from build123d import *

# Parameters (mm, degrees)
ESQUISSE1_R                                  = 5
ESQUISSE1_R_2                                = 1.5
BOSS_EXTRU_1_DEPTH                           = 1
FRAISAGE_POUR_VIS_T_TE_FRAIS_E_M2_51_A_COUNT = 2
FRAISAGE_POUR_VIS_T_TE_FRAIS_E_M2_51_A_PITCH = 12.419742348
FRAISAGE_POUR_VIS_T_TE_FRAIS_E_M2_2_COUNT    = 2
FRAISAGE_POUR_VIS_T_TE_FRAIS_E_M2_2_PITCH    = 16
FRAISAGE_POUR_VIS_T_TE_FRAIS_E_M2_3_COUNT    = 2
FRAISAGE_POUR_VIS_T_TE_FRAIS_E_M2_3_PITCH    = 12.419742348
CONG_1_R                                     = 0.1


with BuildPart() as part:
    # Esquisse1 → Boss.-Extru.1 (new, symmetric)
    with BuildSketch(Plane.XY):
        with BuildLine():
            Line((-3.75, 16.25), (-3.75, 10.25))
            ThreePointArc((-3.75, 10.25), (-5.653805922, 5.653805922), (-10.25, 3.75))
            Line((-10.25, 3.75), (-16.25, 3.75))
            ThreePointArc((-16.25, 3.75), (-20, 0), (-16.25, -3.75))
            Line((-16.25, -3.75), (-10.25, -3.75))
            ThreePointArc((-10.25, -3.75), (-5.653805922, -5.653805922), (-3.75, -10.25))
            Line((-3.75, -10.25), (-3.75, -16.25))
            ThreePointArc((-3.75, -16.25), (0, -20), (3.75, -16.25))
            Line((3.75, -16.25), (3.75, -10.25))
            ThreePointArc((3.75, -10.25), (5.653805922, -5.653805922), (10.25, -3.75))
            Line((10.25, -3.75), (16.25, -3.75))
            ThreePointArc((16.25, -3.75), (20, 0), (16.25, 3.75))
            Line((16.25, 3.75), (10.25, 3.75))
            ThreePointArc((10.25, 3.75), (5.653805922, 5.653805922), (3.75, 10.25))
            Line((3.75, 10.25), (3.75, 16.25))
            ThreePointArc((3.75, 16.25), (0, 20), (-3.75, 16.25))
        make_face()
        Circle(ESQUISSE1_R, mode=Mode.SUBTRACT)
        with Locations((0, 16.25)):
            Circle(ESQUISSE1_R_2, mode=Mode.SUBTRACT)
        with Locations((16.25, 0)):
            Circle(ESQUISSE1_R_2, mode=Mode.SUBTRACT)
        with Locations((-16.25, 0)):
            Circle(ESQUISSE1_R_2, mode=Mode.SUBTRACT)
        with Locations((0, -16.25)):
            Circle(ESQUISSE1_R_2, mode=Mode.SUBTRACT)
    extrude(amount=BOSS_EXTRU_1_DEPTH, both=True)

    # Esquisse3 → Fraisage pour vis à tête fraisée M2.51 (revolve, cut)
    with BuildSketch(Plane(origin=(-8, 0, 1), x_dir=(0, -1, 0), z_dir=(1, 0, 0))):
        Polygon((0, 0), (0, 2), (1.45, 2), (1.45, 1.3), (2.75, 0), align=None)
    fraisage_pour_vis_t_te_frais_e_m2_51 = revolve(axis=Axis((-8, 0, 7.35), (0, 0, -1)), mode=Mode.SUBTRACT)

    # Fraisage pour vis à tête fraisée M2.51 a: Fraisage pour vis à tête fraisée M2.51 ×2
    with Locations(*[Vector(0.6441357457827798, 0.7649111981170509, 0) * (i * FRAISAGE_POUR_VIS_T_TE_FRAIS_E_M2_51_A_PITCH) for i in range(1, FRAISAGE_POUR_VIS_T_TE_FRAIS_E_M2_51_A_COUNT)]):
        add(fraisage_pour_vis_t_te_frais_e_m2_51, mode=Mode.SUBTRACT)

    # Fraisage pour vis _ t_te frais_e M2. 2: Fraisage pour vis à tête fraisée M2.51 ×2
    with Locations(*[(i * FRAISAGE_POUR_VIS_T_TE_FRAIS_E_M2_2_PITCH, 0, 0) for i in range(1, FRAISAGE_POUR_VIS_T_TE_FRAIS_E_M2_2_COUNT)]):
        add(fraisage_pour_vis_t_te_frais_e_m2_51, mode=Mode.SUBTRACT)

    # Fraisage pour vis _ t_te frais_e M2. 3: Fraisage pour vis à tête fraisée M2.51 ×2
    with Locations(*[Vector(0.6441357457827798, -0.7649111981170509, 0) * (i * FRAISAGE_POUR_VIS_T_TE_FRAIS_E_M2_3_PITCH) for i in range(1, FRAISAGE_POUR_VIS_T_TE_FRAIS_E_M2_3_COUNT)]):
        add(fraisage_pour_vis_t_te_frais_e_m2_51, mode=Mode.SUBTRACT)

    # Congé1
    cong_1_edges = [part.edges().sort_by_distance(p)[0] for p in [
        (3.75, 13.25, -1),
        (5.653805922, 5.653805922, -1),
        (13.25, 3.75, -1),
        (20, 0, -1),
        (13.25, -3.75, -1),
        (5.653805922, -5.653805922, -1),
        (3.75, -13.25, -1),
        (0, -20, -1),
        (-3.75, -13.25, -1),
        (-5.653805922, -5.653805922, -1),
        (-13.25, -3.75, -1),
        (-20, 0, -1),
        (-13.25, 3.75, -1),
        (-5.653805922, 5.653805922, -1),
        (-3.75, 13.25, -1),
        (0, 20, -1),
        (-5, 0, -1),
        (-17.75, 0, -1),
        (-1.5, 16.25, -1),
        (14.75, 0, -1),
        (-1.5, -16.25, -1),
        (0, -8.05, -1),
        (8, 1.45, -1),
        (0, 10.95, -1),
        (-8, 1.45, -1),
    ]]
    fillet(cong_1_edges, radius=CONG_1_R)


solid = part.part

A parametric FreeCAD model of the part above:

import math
import FreeCAD as App
import Part
import Sketcher
Q = App.Units.Quantity


def edges_at(feature, points):
    """Names of the edges that pass closest to the given points."""
    edges = feature.Shape.Edges
    near = lambda p: min(range(len(edges)), key=lambda i: edges[i].distToShape(Part.Vertex(*p))[0])
    return sorted({f"Edge{near(p) + 1}" for p in points})

doc = App.newDocument("Part")
body = doc.addObject("PartDesign::Body", "Body")

sketch1 = body.newObject("Sketcher::SketchObject", "Sketch")
sketch1.AttachmentSupport = (doc.getObject("XY_Plane"), [""])
sketch1.MapMode = "FlatFace"
sketch1.addGeometry(Part.LineSegment(App.Vector(-3.8, 16.2, 0), App.Vector(-3.8, 10.2, 0)), False)
sketch1.addGeometry(Part.ArcOfCircle(Part.Circle(App.Vector(-10.2, 10.2, 0), App.Vector(0, 0, 1), 6.5), math.radians(-90), math.radians(0)), False)
sketch1.addGeometry(Part.LineSegment(App.Vector(-10.2, 3.8, 0), App.Vector(-16.2, 3.8, 0)), False)
sketch1.addGeometry(Part.ArcOfCircle(Part.Circle(App.Vector(-16.2, 0, 0), App.Vector(0, 0, 1), 3.8), math.radians(90), math.radians(270)), False)
sketch1.addGeometry(Part.LineSegment(App.Vector(-16.2, -3.8, 0), App.Vector(-10.2, -3.8, 0)), False)
sketch1.addGeometry(Part.ArcOfCircle(Part.Circle(App.Vector(-10.2, -10.2, 0), App.Vector(0, 0, 1), 6.5), math.radians(0), math.radians(90)), False)
sketch1.addGeometry(Part.LineSegment(App.Vector(-3.8, -10.2, 0), App.Vector(-3.8, -16.2, 0)), False)
sketch1.addGeometry(Part.ArcOfCircle(Part.Circle(App.Vector(0, -16.2, 0), App.Vector(0, 0, 1), 3.8), math.radians(180), math.radians(360)), False)
sketch1.addGeometry(Part.LineSegment(App.Vector(3.8, -16.2, 0), App.Vector(3.8, -10.2, 0)), False)
sketch1.addGeometry(Part.ArcOfCircle(Part.Circle(App.Vector(10.2, -10.2, 0), App.Vector(0, 0, 1), 6.5), math.radians(90), math.radians(180)), False)
sketch1.addGeometry(Part.LineSegment(App.Vector(10.2, -3.8, 0), App.Vector(16.2, -3.8, 0)), False)
sketch1.addGeometry(Part.ArcOfCircle(Part.Circle(App.Vector(16.2, 0, 0), App.Vector(0, 0, 1), 3.8), math.radians(-90), math.radians(90)), False)
sketch1.addGeometry(Part.LineSegment(App.Vector(16.2, 3.8, 0), App.Vector(10.2, 3.8, 0)), False)
sketch1.addGeometry(Part.ArcOfCircle(Part.Circle(App.Vector(10.2, 10.2, 0), App.Vector(0, 0, 1), 6.5), math.radians(180), math.radians(270)), False)
sketch1.addGeometry(Part.LineSegment(App.Vector(3.8, 10.2, 0), App.Vector(3.8, 16.2, 0)), False)
sketch1.addGeometry(Part.ArcOfCircle(Part.Circle(App.Vector(0, 16.2, 0), App.Vector(0, 0, 1), 3.8), math.radians(0), math.radians(180)), False)
sketch1.addGeometry(Part.Circle(App.Vector(0, -16.2, 0), App.Vector(0, 0, 1), 1.5), False)
sketch1.addGeometry(Part.Circle(App.Vector(-16.2, 0, 0), App.Vector(0, 0, 1), 1.5), False)
sketch1.addGeometry(Part.Circle(App.Vector(0, 0, 0), App.Vector(0, 0, 1), 5), False)
sketch1.addGeometry(Part.Circle(App.Vector(16.2, 0, 0), App.Vector(0, 0, 1), 1.5), False)
sketch1.addGeometry(Part.Circle(App.Vector(0, 16.2, 0), App.Vector(0, 0, 1), 1.5), False)
sketch1.addConstraint(Sketcher.Constraint("Tangent", 0, 2, 1, 2))
sketch1.addConstraint(Sketcher.Constraint("Tangent", 1, 1, 2, 1))
sketch1.addConstraint(Sketcher.Constraint("Tangent", 2, 2, 3, 1))
sketch1.addConstraint(Sketcher.Constraint("Tangent", 3, 2, 4, 1))
sketch1.addConstraint(Sketcher.Constraint("Tangent", 4, 2, 5, 2))
sketch1.addConstraint(Sketcher.Constraint("Tangent", 5, 1, 6, 1))
sketch1.addConstraint(Sketcher.Constraint("Tangent", 6, 2, 7, 1))
sketch1.addConstraint(Sketcher.Constraint("Tangent", 7, 2, 8, 1))
sketch1.addConstraint(Sketcher.Constraint("Tangent", 8, 2, 9, 2))
sketch1.addConstraint(Sketcher.Constraint("Tangent", 9, 1, 10, 1))
sketch1.addConstraint(Sketcher.Constraint("Tangent", 10, 2, 11, 1))
sketch1.addConstraint(Sketcher.Constraint("Tangent", 11, 2, 12, 1))
sketch1.addConstraint(Sketcher.Constraint("Tangent", 12, 2, 13, 2))
sketch1.addConstraint(Sketcher.Constraint("Tangent", 13, 1, 14, 1))
sketch1.addConstraint(Sketcher.Constraint("Tangent", 14, 2, 15, 1))
sketch1.addConstraint(Sketcher.Constraint("Tangent", 15, 2, 0, 1))
sketch1.addConstraint(Sketcher.Constraint("Vertical", 0))
sketch1.addConstraint(Sketcher.Constraint("Horizontal", 2))
sketch1.addConstraint(Sketcher.Constraint("Horizontal", 4))
sketch1.addConstraint(Sketcher.Constraint("Vertical", 6))
sketch1.addConstraint(Sketcher.Constraint("Vertical", 8))
sketch1.addConstraint(Sketcher.Constraint("Horizontal", 10))
sketch1.addConstraint(Sketcher.Constraint("Horizontal", 12))
sketch1.addConstraint(Sketcher.Constraint("Vertical", 14))
sketch1.addConstraint(Sketcher.Constraint("Coincident", 18, 3, -1, 1))
sketch1.addConstraint(Sketcher.Constraint("Coincident", 16, 3, 7, 3))
sketch1.addConstraint(Sketcher.Constraint("Coincident", 17, 3, 3, 3))
sketch1.addConstraint(Sketcher.Constraint("Coincident", 19, 3, 11, 3))
sketch1.addConstraint(Sketcher.Constraint("Coincident", 20, 3, 15, 3))
sketch1.addConstraint(Sketcher.Constraint("Equal", 1, 5))
sketch1.addConstraint(Sketcher.Constraint("Equal", 3, 7))
sketch1.addConstraint(Sketcher.Constraint("Equal", 5, 9))
sketch1.addConstraint(Sketcher.Constraint("Equal", 7, 11))
sketch1.addConstraint(Sketcher.Constraint("Equal", 9, 13))
sketch1.addConstraint(Sketcher.Constraint("Equal", 11, 15))
sketch1.addConstraint(Sketcher.Constraint("Equal", 16, 17))
sketch1.addConstraint(Sketcher.Constraint("Equal", 17, 19))
sketch1.addConstraint(Sketcher.Constraint("Equal", 19, 20))
sketch1.addConstraint(Sketcher.Constraint("Symmetric", 1, 3, 9, 3, -1, 1))
sketch1.addConstraint(Sketcher.Constraint("Symmetric", 5, 3, 9, 3, -2))
sketch1.addConstraint(Sketcher.Constraint("Equal", 4, 10))
sketch1.addConstraint(Sketcher.Constraint("Equal", 12, 0))
sketch1.addConstraint(Sketcher.Constraint("Equal", 0, 6))
sketch1.addConstraint(Sketcher.Constraint("Diameter", 16, Q("3 mm")))
sketch1.addConstraint(Sketcher.Constraint("Diameter", 18, Q("10 mm")))
sketch1.addConstraint(Sketcher.Constraint("Radius", 1, Q("6.5 mm")))
sketch1.addConstraint(Sketcher.Constraint("DistanceX", 2, 2, 2, 1, Q("6 mm")))
sketch1.addConstraint(Sketcher.Constraint("Radius", 3, Q("3.75 mm")))
pad1 = body.newObject("PartDesign::Pad", "Pad")
pad1.Profile = sketch1
pad1.Length = 2
pad1.Midplane = True

sketch2 = body.newObject("Sketcher::SketchObject", "Sketch001")
sketch2.AttachmentSupport = (doc.getObject("YZ_Plane"), [""])
sketch2.MapMode = "FlatFace"
sketch2.AttachmentOffset = App.Placement(App.Vector(0, 0, -8), App.Rotation())
sketch2.addGeometry(Part.LineSegment(App.Vector(0, -1, 0), App.Vector(0, 1, 0)), False)
sketch2.addGeometry(Part.LineSegment(App.Vector(0, 1, 0), App.Vector(-2.8, 1, 0)), False)
sketch2.addGeometry(Part.LineSegment(App.Vector(-2.8, 1, 0), App.Vector(-1.4, -0.3, 0)), False)
sketch2.addGeometry(Part.LineSegment(App.Vector(-1.4, -0.3, 0), App.Vector(-1.4, -1, 0)), False)
sketch2.addGeometry(Part.LineSegment(App.Vector(-1.4, -1, 0), App.Vector(0, -1, 0)), False)
sketch2.addConstraint(Sketcher.Constraint("Coincident", 0, 2, 1, 1))
sketch2.addConstraint(Sketcher.Constraint("Coincident", 1, 2, 2, 1))
sketch2.addConstraint(Sketcher.Constraint("Coincident", 2, 2, 3, 1))
sketch2.addConstraint(Sketcher.Constraint("Coincident", 3, 2, 4, 1))
sketch2.addConstraint(Sketcher.Constraint("Coincident", 4, 2, 0, 1))
sketch2.addConstraint(Sketcher.Constraint("Vertical", 0))
sketch2.addConstraint(Sketcher.Constraint("Horizontal", 1))
sketch2.addConstraint(Sketcher.Constraint("Vertical", 3))
sketch2.addConstraint(Sketcher.Constraint("Horizontal", 4))
sketch2.addConstraint(Sketcher.Constraint("Symmetric", 0, 2, 4, 2, -1, 1))
sketch2.addConstraint(Sketcher.Constraint("DistanceY", 0, 1, 0, 2, Q("2 mm")))
sketch2.addConstraint(Sketcher.Constraint("Angle", 2, Q("-45 deg")))
sketch2.addConstraint(Sketcher.Constraint("DistanceY", 3, 2, 3, 1, Q("0.7 mm")))
sketch2.addConstraint(Sketcher.Constraint("DistanceX", 1, 2, 1, 1, Q("2.75 mm")))
groove = body.newObject("PartDesign::Groove", "Groove")
groove.Profile = sketch2
groove.ReferenceAxis = (sketch2, ["V_Axis"])
groove.Angle = 360
doc.recompute()

datumline = body.newObject("PartDesign::Line", "DatumLine")
datumline.Placement = App.Placement(App.Vector(0, 0, 0), App.Rotation(App.Vector(0, 0, 1), App.Vector(0.644135746, 0.764911198, 0)))
linearpattern = body.newObject("PartDesign::LinearPattern", "LinearPattern")
linearpattern.Originals = [groove]
linearpattern.Direction = (datumline, [""])
linearpattern.Mode = "offset"
linearpattern.Offset = 12.419742
linearpattern.Occurrences = 2
body.Tip = linearpattern
doc.recompute()

linearpattern2 = body.newObject("PartDesign::LinearPattern", "LinearPattern001")
linearpattern2.Originals = [groove]
linearpattern2.Direction = (doc.getObject("X_Axis"), [""])
linearpattern2.Mode = "offset"
linearpattern2.Offset = 16
linearpattern2.Occurrences = 2
body.Tip = linearpattern2
doc.recompute()

datumline2 = body.newObject("PartDesign::Line", "DatumLine001")
datumline2.Placement = App.Placement(App.Vector(0, 0, 0), App.Rotation(App.Vector(0, 0, 1), App.Vector(0.644135746, -0.764911198, 0)))
linearpattern3 = body.newObject("PartDesign::LinearPattern", "LinearPattern002")
linearpattern3.Originals = [groove]
linearpattern3.Direction = (datumline2, [""])
linearpattern3.Mode = "offset"
linearpattern3.Offset = 12.419742
linearpattern3.Occurrences = 2
body.Tip = linearpattern3
doc.recompute()

fillet = body.newObject("PartDesign::Fillet", "Fillet")
fillet.Base = (linearpattern3, edges_at(linearpattern3, [
    (3.75, 13.25, -1),
    (5.654, 5.654, -1),
    (13.25, 3.75, -1),
    (20, 0, -1),
    (13.25, -3.75, -1),
    (5.654, -5.654, -1),
    (3.75, -13.25, -1),
    (0, -20, -1),
    (-3.75, -13.25, -1),
    (-5.654, -5.654, -1),
    (-13.25, -3.75, -1),
    (-20, 0, -1),
    (-13.25, 3.75, -1),
    (-5.654, 5.654, -1),
    (-3.75, 13.25, -1),
    (0, 20, -1),
    (-5, 0, -1),
    (-17.75, 0, -1),
    (-1.5, 16.25, -1),
    (14.75, 0, -1),
    (-1.5, -16.25, -1),
    (0, -8.05, -1),
    (8, 1.45, -1),
    (0, 10.95, -1),
    (-8, 1.45, -1),
]))
fillet.Radius = 0.1

doc.recompute()
